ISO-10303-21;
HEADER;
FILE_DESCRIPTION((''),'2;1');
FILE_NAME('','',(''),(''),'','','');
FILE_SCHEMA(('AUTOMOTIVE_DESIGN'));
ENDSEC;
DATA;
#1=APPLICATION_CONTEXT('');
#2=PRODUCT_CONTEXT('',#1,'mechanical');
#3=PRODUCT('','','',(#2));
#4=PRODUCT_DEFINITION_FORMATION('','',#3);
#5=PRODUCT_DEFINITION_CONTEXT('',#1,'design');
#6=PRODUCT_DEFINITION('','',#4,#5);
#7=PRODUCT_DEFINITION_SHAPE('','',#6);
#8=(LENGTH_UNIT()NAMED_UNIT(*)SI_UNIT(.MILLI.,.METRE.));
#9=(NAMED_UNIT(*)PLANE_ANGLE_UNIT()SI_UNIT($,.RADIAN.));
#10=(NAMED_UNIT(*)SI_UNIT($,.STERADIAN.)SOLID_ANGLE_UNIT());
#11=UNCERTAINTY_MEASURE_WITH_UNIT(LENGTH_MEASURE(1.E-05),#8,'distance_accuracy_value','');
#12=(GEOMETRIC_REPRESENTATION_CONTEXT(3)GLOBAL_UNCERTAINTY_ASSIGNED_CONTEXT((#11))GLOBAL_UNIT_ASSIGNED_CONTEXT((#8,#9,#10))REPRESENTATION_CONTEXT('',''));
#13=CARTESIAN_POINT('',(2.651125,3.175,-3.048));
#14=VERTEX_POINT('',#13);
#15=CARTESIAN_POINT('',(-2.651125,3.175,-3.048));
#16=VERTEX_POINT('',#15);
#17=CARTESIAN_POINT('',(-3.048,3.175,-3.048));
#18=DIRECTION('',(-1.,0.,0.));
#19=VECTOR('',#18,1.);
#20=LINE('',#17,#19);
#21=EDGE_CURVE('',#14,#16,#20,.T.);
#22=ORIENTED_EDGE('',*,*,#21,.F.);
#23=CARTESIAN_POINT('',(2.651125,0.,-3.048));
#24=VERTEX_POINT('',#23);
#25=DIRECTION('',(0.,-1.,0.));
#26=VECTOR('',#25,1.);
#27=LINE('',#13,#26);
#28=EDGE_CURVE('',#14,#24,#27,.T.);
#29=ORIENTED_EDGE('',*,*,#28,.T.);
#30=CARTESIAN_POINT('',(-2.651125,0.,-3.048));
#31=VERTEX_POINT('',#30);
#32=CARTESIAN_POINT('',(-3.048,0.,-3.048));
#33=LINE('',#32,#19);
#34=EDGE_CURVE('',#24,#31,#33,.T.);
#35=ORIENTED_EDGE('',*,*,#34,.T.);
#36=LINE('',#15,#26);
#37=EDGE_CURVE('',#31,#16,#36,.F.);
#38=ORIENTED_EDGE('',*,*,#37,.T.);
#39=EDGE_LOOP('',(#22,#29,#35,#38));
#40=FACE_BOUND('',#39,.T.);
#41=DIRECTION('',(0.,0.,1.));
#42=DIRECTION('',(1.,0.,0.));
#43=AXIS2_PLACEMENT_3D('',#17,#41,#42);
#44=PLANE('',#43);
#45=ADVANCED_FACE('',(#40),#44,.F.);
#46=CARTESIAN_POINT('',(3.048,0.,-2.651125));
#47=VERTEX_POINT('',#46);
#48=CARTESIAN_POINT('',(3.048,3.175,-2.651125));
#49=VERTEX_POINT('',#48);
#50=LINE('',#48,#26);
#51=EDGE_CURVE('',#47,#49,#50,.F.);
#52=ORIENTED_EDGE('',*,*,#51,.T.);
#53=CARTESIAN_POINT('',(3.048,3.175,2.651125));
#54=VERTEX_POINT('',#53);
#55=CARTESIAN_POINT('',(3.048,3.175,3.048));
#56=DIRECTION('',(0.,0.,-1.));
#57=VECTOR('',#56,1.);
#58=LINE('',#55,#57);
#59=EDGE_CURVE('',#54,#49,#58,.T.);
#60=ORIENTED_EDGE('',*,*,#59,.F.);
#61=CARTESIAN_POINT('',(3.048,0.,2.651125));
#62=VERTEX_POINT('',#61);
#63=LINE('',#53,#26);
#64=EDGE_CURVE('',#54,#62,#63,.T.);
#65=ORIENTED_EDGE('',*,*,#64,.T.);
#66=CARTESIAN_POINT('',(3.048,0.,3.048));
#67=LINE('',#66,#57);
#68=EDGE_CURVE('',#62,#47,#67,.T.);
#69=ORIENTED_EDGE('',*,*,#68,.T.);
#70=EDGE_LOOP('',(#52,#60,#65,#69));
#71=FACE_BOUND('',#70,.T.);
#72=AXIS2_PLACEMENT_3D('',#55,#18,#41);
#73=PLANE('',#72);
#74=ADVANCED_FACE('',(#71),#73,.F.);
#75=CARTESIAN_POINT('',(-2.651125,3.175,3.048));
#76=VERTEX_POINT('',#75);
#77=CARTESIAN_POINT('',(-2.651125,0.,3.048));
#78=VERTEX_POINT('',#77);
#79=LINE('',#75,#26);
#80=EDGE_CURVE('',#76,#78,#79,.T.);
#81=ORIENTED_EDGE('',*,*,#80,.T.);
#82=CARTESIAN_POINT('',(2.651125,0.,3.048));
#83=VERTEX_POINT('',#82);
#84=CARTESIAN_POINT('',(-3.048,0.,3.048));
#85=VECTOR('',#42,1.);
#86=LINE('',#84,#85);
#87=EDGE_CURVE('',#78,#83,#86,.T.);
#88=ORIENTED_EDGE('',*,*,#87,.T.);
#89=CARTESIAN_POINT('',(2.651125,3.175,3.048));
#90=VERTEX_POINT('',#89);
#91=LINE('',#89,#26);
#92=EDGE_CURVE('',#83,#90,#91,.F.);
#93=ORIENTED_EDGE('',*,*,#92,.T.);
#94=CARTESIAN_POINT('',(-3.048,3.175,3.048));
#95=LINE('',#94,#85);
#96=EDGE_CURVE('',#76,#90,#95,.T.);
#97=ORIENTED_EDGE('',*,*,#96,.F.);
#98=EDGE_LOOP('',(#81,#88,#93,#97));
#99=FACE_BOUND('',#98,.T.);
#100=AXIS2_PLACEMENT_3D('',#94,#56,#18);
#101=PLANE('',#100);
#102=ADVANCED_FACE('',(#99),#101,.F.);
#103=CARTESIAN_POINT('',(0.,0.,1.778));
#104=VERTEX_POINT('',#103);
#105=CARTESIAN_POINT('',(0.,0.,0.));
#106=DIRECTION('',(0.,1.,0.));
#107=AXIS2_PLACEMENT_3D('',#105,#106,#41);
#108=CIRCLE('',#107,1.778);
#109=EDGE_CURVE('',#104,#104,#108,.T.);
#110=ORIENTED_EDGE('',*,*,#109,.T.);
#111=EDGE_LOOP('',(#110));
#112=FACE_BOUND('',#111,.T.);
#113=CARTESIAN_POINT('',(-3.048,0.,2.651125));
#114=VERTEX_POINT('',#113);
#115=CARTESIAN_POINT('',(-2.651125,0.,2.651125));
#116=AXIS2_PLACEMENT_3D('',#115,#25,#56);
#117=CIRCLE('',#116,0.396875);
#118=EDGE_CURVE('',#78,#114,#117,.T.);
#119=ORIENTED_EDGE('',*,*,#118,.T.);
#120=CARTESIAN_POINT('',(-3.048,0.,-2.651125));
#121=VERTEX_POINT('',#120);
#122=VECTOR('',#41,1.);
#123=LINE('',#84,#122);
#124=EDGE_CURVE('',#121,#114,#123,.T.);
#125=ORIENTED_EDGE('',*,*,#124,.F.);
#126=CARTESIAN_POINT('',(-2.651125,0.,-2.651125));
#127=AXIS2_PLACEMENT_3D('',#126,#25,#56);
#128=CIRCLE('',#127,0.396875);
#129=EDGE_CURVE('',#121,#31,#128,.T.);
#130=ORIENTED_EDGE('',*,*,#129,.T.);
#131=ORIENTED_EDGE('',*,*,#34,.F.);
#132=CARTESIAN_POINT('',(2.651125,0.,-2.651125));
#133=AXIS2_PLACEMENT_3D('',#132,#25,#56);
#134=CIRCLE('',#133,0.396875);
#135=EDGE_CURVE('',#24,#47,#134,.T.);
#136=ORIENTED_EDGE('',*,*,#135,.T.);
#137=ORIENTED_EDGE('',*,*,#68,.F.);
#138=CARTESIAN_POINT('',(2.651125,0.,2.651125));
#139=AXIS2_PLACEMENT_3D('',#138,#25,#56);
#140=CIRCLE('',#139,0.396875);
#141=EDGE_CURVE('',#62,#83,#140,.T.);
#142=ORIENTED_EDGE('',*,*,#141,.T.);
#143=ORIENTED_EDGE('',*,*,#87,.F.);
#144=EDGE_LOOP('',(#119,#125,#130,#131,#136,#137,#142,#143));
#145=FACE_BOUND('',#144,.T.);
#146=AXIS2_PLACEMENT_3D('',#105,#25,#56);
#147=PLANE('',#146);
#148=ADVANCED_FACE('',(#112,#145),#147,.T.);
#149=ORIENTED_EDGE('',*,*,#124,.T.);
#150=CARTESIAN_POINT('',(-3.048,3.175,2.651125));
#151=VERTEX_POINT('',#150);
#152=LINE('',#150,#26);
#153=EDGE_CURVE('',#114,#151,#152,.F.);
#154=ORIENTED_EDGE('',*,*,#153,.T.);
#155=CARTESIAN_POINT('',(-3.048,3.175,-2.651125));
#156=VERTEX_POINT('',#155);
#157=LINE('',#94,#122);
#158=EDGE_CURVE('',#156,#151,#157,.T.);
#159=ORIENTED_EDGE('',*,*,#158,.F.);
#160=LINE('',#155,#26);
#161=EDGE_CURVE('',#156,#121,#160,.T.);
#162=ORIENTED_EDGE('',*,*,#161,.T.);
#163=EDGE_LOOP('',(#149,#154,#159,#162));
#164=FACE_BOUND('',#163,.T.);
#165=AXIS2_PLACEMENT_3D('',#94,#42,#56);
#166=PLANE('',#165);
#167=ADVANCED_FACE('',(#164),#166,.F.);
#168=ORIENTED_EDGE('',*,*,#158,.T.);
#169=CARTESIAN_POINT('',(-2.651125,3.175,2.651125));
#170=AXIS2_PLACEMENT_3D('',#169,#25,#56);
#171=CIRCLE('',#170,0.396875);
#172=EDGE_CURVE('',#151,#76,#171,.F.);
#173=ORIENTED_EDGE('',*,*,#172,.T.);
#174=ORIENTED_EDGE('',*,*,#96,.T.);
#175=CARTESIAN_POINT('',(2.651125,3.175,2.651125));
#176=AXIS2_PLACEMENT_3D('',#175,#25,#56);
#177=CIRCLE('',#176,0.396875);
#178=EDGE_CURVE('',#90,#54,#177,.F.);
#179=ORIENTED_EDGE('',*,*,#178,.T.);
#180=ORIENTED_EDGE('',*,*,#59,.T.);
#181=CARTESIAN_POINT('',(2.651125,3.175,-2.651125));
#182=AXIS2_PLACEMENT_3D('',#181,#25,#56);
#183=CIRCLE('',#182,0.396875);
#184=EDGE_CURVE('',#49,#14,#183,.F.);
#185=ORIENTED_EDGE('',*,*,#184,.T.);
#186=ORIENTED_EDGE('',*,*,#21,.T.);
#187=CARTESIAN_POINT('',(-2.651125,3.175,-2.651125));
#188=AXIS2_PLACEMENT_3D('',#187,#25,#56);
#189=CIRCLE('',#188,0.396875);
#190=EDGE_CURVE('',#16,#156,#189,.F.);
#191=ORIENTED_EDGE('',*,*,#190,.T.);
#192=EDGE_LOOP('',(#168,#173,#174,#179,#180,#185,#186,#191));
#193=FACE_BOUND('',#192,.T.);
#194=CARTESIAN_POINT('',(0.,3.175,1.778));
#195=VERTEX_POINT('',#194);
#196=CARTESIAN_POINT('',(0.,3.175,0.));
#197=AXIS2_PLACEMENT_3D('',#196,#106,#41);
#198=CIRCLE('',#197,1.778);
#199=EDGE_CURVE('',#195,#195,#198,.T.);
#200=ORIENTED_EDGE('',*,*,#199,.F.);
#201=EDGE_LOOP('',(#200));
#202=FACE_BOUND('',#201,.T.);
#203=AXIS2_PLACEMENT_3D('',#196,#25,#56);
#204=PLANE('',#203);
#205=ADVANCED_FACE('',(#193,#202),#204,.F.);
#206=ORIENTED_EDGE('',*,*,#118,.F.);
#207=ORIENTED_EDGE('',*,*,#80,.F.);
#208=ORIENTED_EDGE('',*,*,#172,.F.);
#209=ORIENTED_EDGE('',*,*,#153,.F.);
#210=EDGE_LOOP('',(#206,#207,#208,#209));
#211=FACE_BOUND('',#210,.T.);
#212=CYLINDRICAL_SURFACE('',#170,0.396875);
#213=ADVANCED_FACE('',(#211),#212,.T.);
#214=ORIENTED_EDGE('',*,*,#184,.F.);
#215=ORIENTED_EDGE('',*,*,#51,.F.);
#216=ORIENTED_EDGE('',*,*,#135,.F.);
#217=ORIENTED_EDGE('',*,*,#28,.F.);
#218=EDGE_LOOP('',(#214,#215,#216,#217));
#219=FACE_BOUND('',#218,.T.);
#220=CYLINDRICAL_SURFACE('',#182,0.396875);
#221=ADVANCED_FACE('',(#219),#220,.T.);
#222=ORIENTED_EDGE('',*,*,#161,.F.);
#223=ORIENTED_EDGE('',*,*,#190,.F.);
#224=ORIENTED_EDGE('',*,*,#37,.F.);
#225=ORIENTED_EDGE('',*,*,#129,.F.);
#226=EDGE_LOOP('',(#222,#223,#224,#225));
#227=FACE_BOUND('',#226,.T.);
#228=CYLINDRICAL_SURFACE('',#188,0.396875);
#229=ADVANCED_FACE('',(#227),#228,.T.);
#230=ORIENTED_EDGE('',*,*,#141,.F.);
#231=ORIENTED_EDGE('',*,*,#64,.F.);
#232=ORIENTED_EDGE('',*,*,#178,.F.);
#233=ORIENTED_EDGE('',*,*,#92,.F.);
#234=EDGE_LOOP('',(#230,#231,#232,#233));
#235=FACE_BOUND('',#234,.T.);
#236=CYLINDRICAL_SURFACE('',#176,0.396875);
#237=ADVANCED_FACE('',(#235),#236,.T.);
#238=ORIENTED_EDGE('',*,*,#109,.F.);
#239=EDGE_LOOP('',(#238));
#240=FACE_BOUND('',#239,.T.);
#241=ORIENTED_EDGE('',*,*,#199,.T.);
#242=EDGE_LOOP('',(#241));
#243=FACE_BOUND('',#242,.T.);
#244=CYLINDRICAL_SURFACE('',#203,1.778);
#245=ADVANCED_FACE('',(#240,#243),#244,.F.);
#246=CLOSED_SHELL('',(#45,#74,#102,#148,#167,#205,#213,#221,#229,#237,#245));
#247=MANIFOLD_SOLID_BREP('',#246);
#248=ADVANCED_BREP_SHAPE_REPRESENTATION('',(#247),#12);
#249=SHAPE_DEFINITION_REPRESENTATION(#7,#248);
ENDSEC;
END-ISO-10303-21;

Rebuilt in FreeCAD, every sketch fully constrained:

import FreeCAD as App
import Part
import Sketcher
Q = App.Units.Quantity


def edges_at(feature, points):
    """Names of the edges that pass closest to the given points."""
    edges = feature.Shape.Edges
    near = lambda p: min(range(len(edges)), key=lambda i: edges[i].distToShape(Part.Vertex(*p))[0])
    return sorted({f"Edge{near(p) + 1}" for p in points})

doc = App.newDocument("Part")
params = doc.addObject("Spreadsheet::Sheet", "Params")
for row, (alias, value) in enumerate([
    ("sketch1_diameter", "0.14 in"),
    ("sketch1_width", "0.24 in"),
    ("pad1_length", "0.125 in"),
    ("fillet_radius", "0.015625 in"),
], start=1):
    params.set(f"A{row}", alias)
    params.set(f"B{row}", "=" + value)
    params.setAlias(f"B{row}", alias)

body = doc.addObject("PartDesign::Body", "Body")

sketch1 = doc.addObject("Sketcher::SketchObject", "Sketch")
body.addObject(sketch1)
sketch1.AttachmentSupport = (doc.XZ_Plane, [""])
sketch1.MapMode = "FlatFace"
sketch1.addGeometry(Part.LineSegment(App.Vector(-3, -3, 0), App.Vector(-3, 3, 0)), False)
sketch1.addGeometry(Part.LineSegment(App.Vector(-3, 3, 0), App.Vector(3, 3, 0)), False)
sketch1.addGeometry(Part.LineSegment(App.Vector(3, 3, 0), App.Vector(3, -3, 0)), False)
sketch1.addGeometry(Part.LineSegment(App.Vector(3, -3, 0), App.Vector(-3, -3, 0)), False)
sketch1.addGeometry(Part.Circle(App.Vector(0, 0, 0), App.Vector(0, 0, 1), 1.8), False)
sketch1.addConstraint(Sketcher.Constraint("Coincident", 0, 2, 1, 1))
sketch1.addConstraint(Sketcher.Constraint("Coincident", 1, 2, 2, 1))
sketch1.addConstraint(Sketcher.Constraint("Coincident", 2, 2, 3, 1))
sketch1.addConstraint(Sketcher.Constraint("Coincident", 3, 2, 0, 1))
sketch1.addConstraint(Sketcher.Constraint("Vertical", 0))
sketch1.addConstraint(Sketcher.Constraint("Horizontal", 1))
sketch1.addConstraint(Sketcher.Constraint("Vertical", 2))
sketch1.addConstraint(Sketcher.Constraint("Horizontal", 3))
sketch1.addConstraint(Sketcher.Constraint("Coincident", 4, 3, -1, 1))
sketch1.addConstraint(Sketcher.Constraint("Symmetric", 0, 2, 2, 2, -1, 1))
sketch1.addConstraint(Sketcher.Constraint("Equal", 3, 0))
sketch1.addConstraint(Sketcher.Constraint("Diameter", 4, Q("0.14 in")))
sketch1.addConstraint(Sketcher.Constraint("DistanceX", 1, 1, 1, 2, Q("0.24 in")))
sketch1.setExpression("Constraints[11]", "Params.sketch1_diameter")
sketch1.setExpression("Constraints[12]", "Params.sketch1_width")
pad1 = doc.addObject("PartDesign::Pad", "Pad")
body.addObject(pad1)
pad1.Profile = sketch1
pad1.setExpression("Length", "Params.pad1_length")
pad1.Reversed = True
doc.recompute()

fillet = doc.addObject("PartDesign::Fillet", "Fillet")
body.addObject(fillet)
fillet.Base = (pad1, edges_at(pad1, [
    (3.048, 1.587, 3.048),
    (-3.048, 1.587, 3.048),
    (-3.048, 1.587, -3.048),
    (3.048, 1.587, -3.048),
]))
fillet.setExpression("Radius", "Params.fillet_radius")

doc.recompute()
